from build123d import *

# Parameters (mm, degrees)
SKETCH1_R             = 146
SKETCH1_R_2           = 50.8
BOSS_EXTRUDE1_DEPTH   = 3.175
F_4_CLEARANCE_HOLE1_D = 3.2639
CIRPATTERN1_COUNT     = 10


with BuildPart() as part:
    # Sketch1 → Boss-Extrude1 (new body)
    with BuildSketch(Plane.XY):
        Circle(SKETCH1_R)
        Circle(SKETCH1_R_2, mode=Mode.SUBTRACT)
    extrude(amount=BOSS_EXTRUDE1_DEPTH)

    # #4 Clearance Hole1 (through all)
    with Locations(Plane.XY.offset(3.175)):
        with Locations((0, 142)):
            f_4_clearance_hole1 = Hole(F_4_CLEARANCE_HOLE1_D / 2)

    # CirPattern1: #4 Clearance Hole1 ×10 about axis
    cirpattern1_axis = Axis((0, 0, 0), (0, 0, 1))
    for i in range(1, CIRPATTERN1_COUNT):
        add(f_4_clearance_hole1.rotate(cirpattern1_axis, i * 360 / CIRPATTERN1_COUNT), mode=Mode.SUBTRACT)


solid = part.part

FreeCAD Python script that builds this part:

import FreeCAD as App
import Part
import Sketcher
from FreeCAD import Vector
Q = App.Units.Quantity

doc = App.newDocument("Part")
body = doc.addObject("PartDesign::Body", "Body")

# Sketch on XY plane
sketch1 = doc.addObject("Sketcher::SketchObject", "Sketch")
body.addObject(sketch1)
sketch1.AttachmentSupport = (doc.XY_Plane, [""])
sketch1.MapMode = "FlatFace"
sketch1.addGeometry(Part.Circle(Vector(0, 0, 0), Vector(0, 0, 1), 146), False)
sketch1.addGeometry(Part.Circle(Vector(0, 0, 0), Vector(0, 0, 1), 51), False)
sketch1.addConstraint(Sketcher.Constraint("Coincident", 0, 3, -1, 1))
sketch1.addConstraint(Sketcher.Constraint("Coincident", 1, 3, -1, 1))
sketch1.addConstraint(Sketcher.Constraint("Diameter", 1, Q("4 in")))
sketch1.addConstraint(Sketcher.Constraint("Diameter", 0, Q("292 mm")))
pad1 = doc.addObject("PartDesign::Pad", "Pad")
body.addObject(pad1)
pad1.Profile = sketch1
pad1.Length = Q("0.125 in")

# Sketch on XY plane
sketch2 = doc.addObject("Sketcher::SketchObject", "Sketch001")
body.addObject(sketch2)
sketch2.AttachmentSupport = (doc.XY_Plane, [""])
sketch2.MapMode = "FlatFace"
sketch2.AttachmentOffset = App.Placement(Vector(0, 0, 0.125 * 25.4), App.Rotation())
sketch2.addGeometry(Part.Circle(Vector(0, 142, 0), Vector(0, 0, 1), 1.6), False)
sketch2.addConstraint(Sketcher.Constraint("PointOnObject", 0, 3, -2))
sketch2.addConstraint(Sketcher.Constraint("Diameter", 0, Q("0.1285 in")))
sketch2.addConstraint(Sketcher.Constraint("DistanceY", -1, 1, 0, 3, Q("142 mm")))
doc.recompute()
hole = doc.addObject("PartDesign::Hole", "Hole")
body.addObject(hole)
hole.Profile = sketch2
hole.ThreadType = "None"
hole.Diameter = Q("0.1285 in")
hole.DepthType = "ThroughAll"
doc.recompute()

polarpattern = doc.addObject("PartDesign::PolarPattern", "PolarPattern")
body.addObject(polarpattern)
polarpattern.Originals = [hole]
polarpattern.Axis = (doc.Z_Axis, [""])
polarpattern.Angle = 360
polarpattern.Occurrences = 10
body.Tip = polarpattern

doc.recompute()
